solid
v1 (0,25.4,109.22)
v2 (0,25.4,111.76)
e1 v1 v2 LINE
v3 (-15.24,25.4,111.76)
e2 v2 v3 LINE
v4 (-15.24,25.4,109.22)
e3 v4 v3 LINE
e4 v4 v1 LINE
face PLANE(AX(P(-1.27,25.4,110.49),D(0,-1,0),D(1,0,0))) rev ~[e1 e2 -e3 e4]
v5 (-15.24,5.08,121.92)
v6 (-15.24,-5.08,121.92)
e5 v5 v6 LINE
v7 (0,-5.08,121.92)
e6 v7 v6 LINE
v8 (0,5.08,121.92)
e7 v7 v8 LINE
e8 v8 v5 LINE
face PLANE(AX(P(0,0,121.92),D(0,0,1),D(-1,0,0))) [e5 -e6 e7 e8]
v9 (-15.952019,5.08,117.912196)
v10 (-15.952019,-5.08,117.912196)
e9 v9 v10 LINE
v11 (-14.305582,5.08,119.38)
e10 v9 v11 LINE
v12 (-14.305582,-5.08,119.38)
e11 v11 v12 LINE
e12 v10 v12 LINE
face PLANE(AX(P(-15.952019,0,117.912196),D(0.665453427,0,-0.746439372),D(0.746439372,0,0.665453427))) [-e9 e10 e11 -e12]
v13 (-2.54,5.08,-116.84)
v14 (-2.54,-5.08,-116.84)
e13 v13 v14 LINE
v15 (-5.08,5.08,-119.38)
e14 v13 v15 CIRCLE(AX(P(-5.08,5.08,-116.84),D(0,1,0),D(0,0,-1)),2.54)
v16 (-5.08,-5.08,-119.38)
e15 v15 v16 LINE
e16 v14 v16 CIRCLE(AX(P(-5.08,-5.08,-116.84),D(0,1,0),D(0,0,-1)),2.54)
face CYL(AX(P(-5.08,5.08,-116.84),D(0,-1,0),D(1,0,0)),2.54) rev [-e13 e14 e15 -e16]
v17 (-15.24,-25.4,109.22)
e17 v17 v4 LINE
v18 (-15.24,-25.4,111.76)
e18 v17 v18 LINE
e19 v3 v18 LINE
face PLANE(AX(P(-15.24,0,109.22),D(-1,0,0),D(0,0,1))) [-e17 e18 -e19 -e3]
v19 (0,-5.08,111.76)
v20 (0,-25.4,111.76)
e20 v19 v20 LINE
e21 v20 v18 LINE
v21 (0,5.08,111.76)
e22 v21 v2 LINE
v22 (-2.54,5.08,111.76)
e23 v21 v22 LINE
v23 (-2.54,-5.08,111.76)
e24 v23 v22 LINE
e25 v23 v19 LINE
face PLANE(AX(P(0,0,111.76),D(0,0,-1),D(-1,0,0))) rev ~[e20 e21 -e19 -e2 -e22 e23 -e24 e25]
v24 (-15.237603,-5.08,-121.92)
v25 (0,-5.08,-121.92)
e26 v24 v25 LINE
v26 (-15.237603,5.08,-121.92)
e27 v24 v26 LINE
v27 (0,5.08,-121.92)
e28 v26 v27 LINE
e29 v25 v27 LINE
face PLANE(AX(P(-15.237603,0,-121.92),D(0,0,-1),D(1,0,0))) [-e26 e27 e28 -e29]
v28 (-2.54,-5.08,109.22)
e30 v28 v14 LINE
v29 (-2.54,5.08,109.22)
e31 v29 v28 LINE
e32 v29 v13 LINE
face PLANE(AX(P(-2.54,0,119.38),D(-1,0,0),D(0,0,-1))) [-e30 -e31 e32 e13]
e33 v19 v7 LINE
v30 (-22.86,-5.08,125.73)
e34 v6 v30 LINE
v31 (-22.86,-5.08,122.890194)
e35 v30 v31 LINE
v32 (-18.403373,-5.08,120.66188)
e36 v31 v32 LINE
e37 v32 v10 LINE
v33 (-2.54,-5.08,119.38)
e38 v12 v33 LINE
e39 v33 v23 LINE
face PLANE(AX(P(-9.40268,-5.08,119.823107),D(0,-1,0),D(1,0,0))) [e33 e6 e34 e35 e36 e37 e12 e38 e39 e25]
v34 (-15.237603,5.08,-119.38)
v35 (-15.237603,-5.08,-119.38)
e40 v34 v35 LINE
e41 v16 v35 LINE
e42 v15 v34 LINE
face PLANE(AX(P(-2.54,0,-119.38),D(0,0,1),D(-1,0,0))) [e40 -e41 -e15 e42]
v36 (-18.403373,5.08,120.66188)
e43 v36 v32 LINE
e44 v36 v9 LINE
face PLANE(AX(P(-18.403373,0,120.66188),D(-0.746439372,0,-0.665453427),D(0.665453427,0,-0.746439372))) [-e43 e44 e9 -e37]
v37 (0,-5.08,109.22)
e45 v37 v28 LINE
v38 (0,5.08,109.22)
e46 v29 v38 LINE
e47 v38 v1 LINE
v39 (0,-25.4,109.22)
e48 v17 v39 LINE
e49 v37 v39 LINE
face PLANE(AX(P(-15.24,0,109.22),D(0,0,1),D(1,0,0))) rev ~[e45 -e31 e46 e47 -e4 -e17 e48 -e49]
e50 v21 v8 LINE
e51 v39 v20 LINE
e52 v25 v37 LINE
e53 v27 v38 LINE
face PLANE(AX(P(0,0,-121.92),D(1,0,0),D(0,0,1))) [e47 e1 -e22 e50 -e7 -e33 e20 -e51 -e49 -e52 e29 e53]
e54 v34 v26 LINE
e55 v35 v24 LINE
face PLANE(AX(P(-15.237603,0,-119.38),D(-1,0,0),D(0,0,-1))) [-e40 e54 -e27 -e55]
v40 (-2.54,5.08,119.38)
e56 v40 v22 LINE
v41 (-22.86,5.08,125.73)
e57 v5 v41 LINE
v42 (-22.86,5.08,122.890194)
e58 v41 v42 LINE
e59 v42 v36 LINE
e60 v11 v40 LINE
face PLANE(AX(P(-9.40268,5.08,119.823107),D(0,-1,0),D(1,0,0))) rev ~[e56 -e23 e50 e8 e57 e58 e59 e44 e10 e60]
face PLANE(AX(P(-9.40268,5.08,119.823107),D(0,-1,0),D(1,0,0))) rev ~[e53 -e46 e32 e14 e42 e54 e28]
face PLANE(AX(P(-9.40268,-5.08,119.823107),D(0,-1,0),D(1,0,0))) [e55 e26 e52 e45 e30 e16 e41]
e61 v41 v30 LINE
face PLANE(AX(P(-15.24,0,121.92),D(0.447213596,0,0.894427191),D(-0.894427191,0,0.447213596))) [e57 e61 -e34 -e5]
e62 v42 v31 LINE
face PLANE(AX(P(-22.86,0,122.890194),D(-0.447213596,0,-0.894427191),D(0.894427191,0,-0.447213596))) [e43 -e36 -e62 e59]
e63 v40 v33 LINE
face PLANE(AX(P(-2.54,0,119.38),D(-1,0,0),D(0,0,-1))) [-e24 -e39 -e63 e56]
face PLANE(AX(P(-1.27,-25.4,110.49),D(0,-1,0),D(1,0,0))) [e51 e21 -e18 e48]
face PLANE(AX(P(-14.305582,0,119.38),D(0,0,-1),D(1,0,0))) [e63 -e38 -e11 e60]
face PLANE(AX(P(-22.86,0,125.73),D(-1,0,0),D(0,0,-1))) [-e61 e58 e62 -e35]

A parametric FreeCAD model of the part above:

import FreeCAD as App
import Part
import Sketcher
from FreeCAD import Vector
Q = App.Units.Quantity


def edges_at(feature, points):
    """Names of the edges that pass closest to the given points."""
    edges = feature.Shape.Edges
    near = lambda p: min(range(len(edges)), key=lambda i: edges[i].distToShape(Part.Vertex(*p))[0])
    return sorted({f"Edge{near(p) + 1}" for p in points})


def add_polygon(sketch, points):
    """Adds a closed chain of lines whose ends are joined by coincident constraints."""
    first, n = sketch.GeometryCount, len(points)
    for a, b in zip(points, points[1:] + points[:1]):
        sketch.addGeometry(Part.LineSegment(App.Vector(*a, 0), App.Vector(*b, 0)), False)
    for i in range(n):
        sketch.addConstraint(Sketcher.Constraint("Coincident", first + i, 2, first + (i + 1) % n, 1))

doc = App.newDocument("Part")
body = doc.addObject("PartDesign::Body", "Body")

sketch1 = body.newObject("Sketcher::SketchObject", "Sketch")
sketch1.AttachmentSupport = (doc.getObject("XZ_Plane"), [""])
sketch1.MapMode = "FlatFace"
add_polygon(sketch1, [(0, 121.92), (-15.24, 121.92), (-22.86, 125.73), (-22.86, 122.890194), (-18.403373, 120.66188), (-15.952019, 117.912196), (-14.305582, 119.38), (-2.54, 119.38), (-2.54, -119.38), (-15.237603, -119.38), (-15.237603, -121.92), (0, -121.92)])
sketch1.addConstraint([
    Sketcher.Constraint("Horizontal", 0),
    Sketcher.Constraint("Vertical", 2),
    Sketcher.Constraint("Horizontal", 6),
    Sketcher.Constraint("Vertical", 7),
    Sketcher.Constraint("Horizontal", 8),
    Sketcher.Constraint("Vertical", 9),
    Sketcher.Constraint("Horizontal", 10),
    Sketcher.Constraint("Vertical", 11),
    Sketcher.Constraint("Symmetric", 10, 2, 11, 2, -1, 1),
    Sketcher.Constraint("Parallel", 1, 3),
    Sketcher.Constraint("Perpendicular", 4, 5),
    Sketcher.Constraint("DistanceX", 0, 2, 0, 1, Q("0.6 in")),
    Sketcher.Constraint("DistanceY", 7, 2, 7, 1, Q("9.4 in")),
    Sketcher.Constraint("DistanceY", 9, 2, 9, 1, Q("0.1 in")),
    Sketcher.Constraint("DistanceY", 11, 1, 11, 2, Q("9.6 in")),
    Sketcher.Constraint("DistanceX", 1, 2, -1, 1, Q("0.9 in")),
    Sketcher.Constraint("DistanceX", 6, 2, -1, 1, Q("0.1 in")),
    Sketcher.Constraint("DistanceY", -1, 1, 1, 2, Q("4.95 in")),
    Sketcher.Constraint("DistanceY", 4, 2, 2, 2, 4.977998),
    Sketcher.Constraint("Distance", 3, 4.982661),
    Sketcher.Constraint("Distance", 5, 2.205721),
    Sketcher.Constraint("DistanceX", 6, 1, 6, 2, 11.765582),
    Sketcher.Constraint("DistanceX", 8, 2, 8, 1, 12.697603),
])
pad1 = body.newObject("PartDesign::Pad", "Pad")
pad1.Profile = sketch1
pad1.Type = "TwoLengths"
pad1.Length = Q("0.2 in")
pad1.Length2 = Q("0.2 in")

sketch2 = body.newObject("Sketcher::SketchObject", "Sketch001")
sketch2.AttachmentSupport = (doc.getObject("XZ_Plane"), [""])
sketch2.MapMode = "FlatFace"
add_polygon(sketch2, [(0, 109.22), (0, 111.76), (-15.24, 111.76), (-15.24, 109.22)])
sketch2.addConstraint([
    Sketcher.Constraint("Vertical", 0),
    Sketcher.Constraint("Horizontal", 1),
    Sketcher.Constraint("Vertical", 2),
    Sketcher.Constraint("Horizontal", 3),
    Sketcher.Constraint("PointOnObject", 0, 2, -2),
    Sketcher.Constraint("DistanceX", 1, 2, 1, 1, Q("0.6 in")),
    Sketcher.Constraint("DistanceY", 0, 1, 0, 2, Q("0.1 in")),
    Sketcher.Constraint("DistanceY", -1, 1, 0, 2, Q("4.4 in")),
])
pad2 = body.newObject("PartDesign::Pad", "Pad001")
pad2.Profile = sketch2
pad2.Type = "TwoLengths"
pad2.Length = Q("1 in")
pad2.Length2 = Q("1 in")
doc.recompute()

fillet = body.newObject("PartDesign::Fillet", "Fillet")
fillet.Base = (pad2, edges_at(pad2, [(-2.54, 0, -119.38)]))
fillet.Radius = Q("0.1 in")

doc.recompute()
